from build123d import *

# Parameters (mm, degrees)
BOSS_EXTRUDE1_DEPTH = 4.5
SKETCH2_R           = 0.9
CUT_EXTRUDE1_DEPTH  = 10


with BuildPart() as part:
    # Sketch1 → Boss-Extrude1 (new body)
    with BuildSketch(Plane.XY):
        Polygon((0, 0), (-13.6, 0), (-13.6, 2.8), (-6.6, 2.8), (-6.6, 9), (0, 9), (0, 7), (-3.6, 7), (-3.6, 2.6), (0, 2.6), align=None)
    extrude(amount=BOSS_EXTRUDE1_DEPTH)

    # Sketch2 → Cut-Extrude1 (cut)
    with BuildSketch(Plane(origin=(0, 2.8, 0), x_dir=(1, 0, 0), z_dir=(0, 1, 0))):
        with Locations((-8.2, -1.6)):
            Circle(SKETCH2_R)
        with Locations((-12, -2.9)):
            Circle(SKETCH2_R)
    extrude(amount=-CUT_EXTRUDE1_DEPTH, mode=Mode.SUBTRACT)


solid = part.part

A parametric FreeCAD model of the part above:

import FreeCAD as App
import Part
import Sketcher


def add_polygon(sketch, points):
    """Adds a closed chain of lines whose ends are joined by coincident constraints."""
    first, n = sketch.GeometryCount, len(points)
    for a, b in zip(points, points[1:] + points[:1]):
        sketch.addGeometry(Part.LineSegment(App.Vector(*a, 0), App.Vector(*b, 0)), False)
    for i in range(n):
        sketch.addConstraint(Sketcher.Constraint("Coincident", first + i, 2, first + (i + 1) % n, 1))

doc = App.newDocument("Part")
body = doc.addObject("PartDesign::Body", "Body")

# Sketch on XY plane
sketch1 = doc.addObject("Sketcher::SketchObject", "Sketch")
body.addObject(sketch1)
sketch1.AttachmentSupport = (doc.XY_Plane, [""])
sketch1.MapMode = "FlatFace"
add_polygon(sketch1, [(-13.6, 0), (0, 0), (0, 2.6), (-3.6, 2.6), (-3.6, 7), (0, 7), (0, 9), (-6.6, 9), (-6.6, 2.8), (-13.6, 2.8)])  # lines 0-9
sketch1.addConstraint(Sketcher.Constraint("Horizontal", 0))
sketch1.addConstraint(Sketcher.Constraint("Vertical", 1))
sketch1.addConstraint(Sketcher.Constraint("Horizontal", 2))
sketch1.addConstraint(Sketcher.Constraint("Vertical", 3))
sketch1.addConstraint(Sketcher.Constraint("Horizontal", 4))
sketch1.addConstraint(Sketcher.Constraint("Vertical", 5))
sketch1.addConstraint(Sketcher.Constraint("Horizontal", 6))
sketch1.addConstraint(Sketcher.Constraint("Vertical", 7))
sketch1.addConstraint(Sketcher.Constraint("Horizontal", 8))
sketch1.addConstraint(Sketcher.Constraint("Vertical", 9))
sketch1.addConstraint(Sketcher.Constraint("Coincident", 0, 2, -1, 1))
sketch1.addConstraint(Sketcher.Constraint("PointOnObject", 4, 2, -2))
sketch1.addConstraint(Sketcher.Constraint("DistanceX", 8, 2, 8, 1, 7.0))
sketch1.addConstraint(Sketcher.Constraint("DistanceY", 5, 1, 5, 2, 2.0))
sketch1.addConstraint(Sketcher.Constraint("DistanceX", 0, 1, 0, 2, 13.6))
sketch1.addConstraint(Sketcher.Constraint("DistanceX", 2, 2, 2, 1, 3.6))
sketch1.addConstraint(Sketcher.Constraint("DistanceY", 1, 1, 1, 2, 2.6))
sketch1.addConstraint(Sketcher.Constraint("DistanceY", 3, 1, 3, 2, 4.4))
sketch1.addConstraint(Sketcher.Constraint("DistanceY", 7, 2, 7, 1, 6.2))
pad1 = doc.addObject("PartDesign::Pad", "Pad")
body.addObject(pad1)
pad1.Profile = sketch1
pad1.Length = 4.5

# Sketch on XZ plane
sketch2 = doc.addObject("Sketcher::SketchObject", "Sketch001")
body.addObject(sketch2)
sketch2.AttachmentSupport = (doc.XZ_Plane, [""])
sketch2.MapMode = "FlatFace"
sketch2.AttachmentOffset = App.Placement(App.Vector(0, 0, -2.8), App.Rotation())
sketch2.addGeometry(Part.Circle(App.Vector(-8.2, 1.6, 0), App.Vector(0, 0, 1), 0.9), False)
sketch2.addGeometry(Part.Circle(App.Vector(-12, 2.9, 0), App.Vector(0, 0, 1), 0.9), False)
sketch2.addConstraint(Sketcher.Constraint("Equal", 0, 1))
sketch2.addConstraint(Sketcher.Constraint("Diameter", 0, 1.8))
sketch2.addConstraint(Sketcher.Constraint("DistanceX", 1, 3, -1, 1, 12.0))
sketch2.addConstraint(Sketcher.Constraint("DistanceX", 0, 3, -1, 1, 8.2))
sketch2.addConstraint(Sketcher.Constraint("DistanceY", -1, 1, 0, 3, 1.6))
sketch2.addConstraint(Sketcher.Constraint("DistanceY", -1, 1, 1, 3, 2.9))
pocket1 = doc.addObject("PartDesign::Pocket", "Pocket")
body.addObject(pocket1)
pocket1.Profile = sketch2
pocket1.Length = 10
pocket1.Reversed = True

doc.recompute()
